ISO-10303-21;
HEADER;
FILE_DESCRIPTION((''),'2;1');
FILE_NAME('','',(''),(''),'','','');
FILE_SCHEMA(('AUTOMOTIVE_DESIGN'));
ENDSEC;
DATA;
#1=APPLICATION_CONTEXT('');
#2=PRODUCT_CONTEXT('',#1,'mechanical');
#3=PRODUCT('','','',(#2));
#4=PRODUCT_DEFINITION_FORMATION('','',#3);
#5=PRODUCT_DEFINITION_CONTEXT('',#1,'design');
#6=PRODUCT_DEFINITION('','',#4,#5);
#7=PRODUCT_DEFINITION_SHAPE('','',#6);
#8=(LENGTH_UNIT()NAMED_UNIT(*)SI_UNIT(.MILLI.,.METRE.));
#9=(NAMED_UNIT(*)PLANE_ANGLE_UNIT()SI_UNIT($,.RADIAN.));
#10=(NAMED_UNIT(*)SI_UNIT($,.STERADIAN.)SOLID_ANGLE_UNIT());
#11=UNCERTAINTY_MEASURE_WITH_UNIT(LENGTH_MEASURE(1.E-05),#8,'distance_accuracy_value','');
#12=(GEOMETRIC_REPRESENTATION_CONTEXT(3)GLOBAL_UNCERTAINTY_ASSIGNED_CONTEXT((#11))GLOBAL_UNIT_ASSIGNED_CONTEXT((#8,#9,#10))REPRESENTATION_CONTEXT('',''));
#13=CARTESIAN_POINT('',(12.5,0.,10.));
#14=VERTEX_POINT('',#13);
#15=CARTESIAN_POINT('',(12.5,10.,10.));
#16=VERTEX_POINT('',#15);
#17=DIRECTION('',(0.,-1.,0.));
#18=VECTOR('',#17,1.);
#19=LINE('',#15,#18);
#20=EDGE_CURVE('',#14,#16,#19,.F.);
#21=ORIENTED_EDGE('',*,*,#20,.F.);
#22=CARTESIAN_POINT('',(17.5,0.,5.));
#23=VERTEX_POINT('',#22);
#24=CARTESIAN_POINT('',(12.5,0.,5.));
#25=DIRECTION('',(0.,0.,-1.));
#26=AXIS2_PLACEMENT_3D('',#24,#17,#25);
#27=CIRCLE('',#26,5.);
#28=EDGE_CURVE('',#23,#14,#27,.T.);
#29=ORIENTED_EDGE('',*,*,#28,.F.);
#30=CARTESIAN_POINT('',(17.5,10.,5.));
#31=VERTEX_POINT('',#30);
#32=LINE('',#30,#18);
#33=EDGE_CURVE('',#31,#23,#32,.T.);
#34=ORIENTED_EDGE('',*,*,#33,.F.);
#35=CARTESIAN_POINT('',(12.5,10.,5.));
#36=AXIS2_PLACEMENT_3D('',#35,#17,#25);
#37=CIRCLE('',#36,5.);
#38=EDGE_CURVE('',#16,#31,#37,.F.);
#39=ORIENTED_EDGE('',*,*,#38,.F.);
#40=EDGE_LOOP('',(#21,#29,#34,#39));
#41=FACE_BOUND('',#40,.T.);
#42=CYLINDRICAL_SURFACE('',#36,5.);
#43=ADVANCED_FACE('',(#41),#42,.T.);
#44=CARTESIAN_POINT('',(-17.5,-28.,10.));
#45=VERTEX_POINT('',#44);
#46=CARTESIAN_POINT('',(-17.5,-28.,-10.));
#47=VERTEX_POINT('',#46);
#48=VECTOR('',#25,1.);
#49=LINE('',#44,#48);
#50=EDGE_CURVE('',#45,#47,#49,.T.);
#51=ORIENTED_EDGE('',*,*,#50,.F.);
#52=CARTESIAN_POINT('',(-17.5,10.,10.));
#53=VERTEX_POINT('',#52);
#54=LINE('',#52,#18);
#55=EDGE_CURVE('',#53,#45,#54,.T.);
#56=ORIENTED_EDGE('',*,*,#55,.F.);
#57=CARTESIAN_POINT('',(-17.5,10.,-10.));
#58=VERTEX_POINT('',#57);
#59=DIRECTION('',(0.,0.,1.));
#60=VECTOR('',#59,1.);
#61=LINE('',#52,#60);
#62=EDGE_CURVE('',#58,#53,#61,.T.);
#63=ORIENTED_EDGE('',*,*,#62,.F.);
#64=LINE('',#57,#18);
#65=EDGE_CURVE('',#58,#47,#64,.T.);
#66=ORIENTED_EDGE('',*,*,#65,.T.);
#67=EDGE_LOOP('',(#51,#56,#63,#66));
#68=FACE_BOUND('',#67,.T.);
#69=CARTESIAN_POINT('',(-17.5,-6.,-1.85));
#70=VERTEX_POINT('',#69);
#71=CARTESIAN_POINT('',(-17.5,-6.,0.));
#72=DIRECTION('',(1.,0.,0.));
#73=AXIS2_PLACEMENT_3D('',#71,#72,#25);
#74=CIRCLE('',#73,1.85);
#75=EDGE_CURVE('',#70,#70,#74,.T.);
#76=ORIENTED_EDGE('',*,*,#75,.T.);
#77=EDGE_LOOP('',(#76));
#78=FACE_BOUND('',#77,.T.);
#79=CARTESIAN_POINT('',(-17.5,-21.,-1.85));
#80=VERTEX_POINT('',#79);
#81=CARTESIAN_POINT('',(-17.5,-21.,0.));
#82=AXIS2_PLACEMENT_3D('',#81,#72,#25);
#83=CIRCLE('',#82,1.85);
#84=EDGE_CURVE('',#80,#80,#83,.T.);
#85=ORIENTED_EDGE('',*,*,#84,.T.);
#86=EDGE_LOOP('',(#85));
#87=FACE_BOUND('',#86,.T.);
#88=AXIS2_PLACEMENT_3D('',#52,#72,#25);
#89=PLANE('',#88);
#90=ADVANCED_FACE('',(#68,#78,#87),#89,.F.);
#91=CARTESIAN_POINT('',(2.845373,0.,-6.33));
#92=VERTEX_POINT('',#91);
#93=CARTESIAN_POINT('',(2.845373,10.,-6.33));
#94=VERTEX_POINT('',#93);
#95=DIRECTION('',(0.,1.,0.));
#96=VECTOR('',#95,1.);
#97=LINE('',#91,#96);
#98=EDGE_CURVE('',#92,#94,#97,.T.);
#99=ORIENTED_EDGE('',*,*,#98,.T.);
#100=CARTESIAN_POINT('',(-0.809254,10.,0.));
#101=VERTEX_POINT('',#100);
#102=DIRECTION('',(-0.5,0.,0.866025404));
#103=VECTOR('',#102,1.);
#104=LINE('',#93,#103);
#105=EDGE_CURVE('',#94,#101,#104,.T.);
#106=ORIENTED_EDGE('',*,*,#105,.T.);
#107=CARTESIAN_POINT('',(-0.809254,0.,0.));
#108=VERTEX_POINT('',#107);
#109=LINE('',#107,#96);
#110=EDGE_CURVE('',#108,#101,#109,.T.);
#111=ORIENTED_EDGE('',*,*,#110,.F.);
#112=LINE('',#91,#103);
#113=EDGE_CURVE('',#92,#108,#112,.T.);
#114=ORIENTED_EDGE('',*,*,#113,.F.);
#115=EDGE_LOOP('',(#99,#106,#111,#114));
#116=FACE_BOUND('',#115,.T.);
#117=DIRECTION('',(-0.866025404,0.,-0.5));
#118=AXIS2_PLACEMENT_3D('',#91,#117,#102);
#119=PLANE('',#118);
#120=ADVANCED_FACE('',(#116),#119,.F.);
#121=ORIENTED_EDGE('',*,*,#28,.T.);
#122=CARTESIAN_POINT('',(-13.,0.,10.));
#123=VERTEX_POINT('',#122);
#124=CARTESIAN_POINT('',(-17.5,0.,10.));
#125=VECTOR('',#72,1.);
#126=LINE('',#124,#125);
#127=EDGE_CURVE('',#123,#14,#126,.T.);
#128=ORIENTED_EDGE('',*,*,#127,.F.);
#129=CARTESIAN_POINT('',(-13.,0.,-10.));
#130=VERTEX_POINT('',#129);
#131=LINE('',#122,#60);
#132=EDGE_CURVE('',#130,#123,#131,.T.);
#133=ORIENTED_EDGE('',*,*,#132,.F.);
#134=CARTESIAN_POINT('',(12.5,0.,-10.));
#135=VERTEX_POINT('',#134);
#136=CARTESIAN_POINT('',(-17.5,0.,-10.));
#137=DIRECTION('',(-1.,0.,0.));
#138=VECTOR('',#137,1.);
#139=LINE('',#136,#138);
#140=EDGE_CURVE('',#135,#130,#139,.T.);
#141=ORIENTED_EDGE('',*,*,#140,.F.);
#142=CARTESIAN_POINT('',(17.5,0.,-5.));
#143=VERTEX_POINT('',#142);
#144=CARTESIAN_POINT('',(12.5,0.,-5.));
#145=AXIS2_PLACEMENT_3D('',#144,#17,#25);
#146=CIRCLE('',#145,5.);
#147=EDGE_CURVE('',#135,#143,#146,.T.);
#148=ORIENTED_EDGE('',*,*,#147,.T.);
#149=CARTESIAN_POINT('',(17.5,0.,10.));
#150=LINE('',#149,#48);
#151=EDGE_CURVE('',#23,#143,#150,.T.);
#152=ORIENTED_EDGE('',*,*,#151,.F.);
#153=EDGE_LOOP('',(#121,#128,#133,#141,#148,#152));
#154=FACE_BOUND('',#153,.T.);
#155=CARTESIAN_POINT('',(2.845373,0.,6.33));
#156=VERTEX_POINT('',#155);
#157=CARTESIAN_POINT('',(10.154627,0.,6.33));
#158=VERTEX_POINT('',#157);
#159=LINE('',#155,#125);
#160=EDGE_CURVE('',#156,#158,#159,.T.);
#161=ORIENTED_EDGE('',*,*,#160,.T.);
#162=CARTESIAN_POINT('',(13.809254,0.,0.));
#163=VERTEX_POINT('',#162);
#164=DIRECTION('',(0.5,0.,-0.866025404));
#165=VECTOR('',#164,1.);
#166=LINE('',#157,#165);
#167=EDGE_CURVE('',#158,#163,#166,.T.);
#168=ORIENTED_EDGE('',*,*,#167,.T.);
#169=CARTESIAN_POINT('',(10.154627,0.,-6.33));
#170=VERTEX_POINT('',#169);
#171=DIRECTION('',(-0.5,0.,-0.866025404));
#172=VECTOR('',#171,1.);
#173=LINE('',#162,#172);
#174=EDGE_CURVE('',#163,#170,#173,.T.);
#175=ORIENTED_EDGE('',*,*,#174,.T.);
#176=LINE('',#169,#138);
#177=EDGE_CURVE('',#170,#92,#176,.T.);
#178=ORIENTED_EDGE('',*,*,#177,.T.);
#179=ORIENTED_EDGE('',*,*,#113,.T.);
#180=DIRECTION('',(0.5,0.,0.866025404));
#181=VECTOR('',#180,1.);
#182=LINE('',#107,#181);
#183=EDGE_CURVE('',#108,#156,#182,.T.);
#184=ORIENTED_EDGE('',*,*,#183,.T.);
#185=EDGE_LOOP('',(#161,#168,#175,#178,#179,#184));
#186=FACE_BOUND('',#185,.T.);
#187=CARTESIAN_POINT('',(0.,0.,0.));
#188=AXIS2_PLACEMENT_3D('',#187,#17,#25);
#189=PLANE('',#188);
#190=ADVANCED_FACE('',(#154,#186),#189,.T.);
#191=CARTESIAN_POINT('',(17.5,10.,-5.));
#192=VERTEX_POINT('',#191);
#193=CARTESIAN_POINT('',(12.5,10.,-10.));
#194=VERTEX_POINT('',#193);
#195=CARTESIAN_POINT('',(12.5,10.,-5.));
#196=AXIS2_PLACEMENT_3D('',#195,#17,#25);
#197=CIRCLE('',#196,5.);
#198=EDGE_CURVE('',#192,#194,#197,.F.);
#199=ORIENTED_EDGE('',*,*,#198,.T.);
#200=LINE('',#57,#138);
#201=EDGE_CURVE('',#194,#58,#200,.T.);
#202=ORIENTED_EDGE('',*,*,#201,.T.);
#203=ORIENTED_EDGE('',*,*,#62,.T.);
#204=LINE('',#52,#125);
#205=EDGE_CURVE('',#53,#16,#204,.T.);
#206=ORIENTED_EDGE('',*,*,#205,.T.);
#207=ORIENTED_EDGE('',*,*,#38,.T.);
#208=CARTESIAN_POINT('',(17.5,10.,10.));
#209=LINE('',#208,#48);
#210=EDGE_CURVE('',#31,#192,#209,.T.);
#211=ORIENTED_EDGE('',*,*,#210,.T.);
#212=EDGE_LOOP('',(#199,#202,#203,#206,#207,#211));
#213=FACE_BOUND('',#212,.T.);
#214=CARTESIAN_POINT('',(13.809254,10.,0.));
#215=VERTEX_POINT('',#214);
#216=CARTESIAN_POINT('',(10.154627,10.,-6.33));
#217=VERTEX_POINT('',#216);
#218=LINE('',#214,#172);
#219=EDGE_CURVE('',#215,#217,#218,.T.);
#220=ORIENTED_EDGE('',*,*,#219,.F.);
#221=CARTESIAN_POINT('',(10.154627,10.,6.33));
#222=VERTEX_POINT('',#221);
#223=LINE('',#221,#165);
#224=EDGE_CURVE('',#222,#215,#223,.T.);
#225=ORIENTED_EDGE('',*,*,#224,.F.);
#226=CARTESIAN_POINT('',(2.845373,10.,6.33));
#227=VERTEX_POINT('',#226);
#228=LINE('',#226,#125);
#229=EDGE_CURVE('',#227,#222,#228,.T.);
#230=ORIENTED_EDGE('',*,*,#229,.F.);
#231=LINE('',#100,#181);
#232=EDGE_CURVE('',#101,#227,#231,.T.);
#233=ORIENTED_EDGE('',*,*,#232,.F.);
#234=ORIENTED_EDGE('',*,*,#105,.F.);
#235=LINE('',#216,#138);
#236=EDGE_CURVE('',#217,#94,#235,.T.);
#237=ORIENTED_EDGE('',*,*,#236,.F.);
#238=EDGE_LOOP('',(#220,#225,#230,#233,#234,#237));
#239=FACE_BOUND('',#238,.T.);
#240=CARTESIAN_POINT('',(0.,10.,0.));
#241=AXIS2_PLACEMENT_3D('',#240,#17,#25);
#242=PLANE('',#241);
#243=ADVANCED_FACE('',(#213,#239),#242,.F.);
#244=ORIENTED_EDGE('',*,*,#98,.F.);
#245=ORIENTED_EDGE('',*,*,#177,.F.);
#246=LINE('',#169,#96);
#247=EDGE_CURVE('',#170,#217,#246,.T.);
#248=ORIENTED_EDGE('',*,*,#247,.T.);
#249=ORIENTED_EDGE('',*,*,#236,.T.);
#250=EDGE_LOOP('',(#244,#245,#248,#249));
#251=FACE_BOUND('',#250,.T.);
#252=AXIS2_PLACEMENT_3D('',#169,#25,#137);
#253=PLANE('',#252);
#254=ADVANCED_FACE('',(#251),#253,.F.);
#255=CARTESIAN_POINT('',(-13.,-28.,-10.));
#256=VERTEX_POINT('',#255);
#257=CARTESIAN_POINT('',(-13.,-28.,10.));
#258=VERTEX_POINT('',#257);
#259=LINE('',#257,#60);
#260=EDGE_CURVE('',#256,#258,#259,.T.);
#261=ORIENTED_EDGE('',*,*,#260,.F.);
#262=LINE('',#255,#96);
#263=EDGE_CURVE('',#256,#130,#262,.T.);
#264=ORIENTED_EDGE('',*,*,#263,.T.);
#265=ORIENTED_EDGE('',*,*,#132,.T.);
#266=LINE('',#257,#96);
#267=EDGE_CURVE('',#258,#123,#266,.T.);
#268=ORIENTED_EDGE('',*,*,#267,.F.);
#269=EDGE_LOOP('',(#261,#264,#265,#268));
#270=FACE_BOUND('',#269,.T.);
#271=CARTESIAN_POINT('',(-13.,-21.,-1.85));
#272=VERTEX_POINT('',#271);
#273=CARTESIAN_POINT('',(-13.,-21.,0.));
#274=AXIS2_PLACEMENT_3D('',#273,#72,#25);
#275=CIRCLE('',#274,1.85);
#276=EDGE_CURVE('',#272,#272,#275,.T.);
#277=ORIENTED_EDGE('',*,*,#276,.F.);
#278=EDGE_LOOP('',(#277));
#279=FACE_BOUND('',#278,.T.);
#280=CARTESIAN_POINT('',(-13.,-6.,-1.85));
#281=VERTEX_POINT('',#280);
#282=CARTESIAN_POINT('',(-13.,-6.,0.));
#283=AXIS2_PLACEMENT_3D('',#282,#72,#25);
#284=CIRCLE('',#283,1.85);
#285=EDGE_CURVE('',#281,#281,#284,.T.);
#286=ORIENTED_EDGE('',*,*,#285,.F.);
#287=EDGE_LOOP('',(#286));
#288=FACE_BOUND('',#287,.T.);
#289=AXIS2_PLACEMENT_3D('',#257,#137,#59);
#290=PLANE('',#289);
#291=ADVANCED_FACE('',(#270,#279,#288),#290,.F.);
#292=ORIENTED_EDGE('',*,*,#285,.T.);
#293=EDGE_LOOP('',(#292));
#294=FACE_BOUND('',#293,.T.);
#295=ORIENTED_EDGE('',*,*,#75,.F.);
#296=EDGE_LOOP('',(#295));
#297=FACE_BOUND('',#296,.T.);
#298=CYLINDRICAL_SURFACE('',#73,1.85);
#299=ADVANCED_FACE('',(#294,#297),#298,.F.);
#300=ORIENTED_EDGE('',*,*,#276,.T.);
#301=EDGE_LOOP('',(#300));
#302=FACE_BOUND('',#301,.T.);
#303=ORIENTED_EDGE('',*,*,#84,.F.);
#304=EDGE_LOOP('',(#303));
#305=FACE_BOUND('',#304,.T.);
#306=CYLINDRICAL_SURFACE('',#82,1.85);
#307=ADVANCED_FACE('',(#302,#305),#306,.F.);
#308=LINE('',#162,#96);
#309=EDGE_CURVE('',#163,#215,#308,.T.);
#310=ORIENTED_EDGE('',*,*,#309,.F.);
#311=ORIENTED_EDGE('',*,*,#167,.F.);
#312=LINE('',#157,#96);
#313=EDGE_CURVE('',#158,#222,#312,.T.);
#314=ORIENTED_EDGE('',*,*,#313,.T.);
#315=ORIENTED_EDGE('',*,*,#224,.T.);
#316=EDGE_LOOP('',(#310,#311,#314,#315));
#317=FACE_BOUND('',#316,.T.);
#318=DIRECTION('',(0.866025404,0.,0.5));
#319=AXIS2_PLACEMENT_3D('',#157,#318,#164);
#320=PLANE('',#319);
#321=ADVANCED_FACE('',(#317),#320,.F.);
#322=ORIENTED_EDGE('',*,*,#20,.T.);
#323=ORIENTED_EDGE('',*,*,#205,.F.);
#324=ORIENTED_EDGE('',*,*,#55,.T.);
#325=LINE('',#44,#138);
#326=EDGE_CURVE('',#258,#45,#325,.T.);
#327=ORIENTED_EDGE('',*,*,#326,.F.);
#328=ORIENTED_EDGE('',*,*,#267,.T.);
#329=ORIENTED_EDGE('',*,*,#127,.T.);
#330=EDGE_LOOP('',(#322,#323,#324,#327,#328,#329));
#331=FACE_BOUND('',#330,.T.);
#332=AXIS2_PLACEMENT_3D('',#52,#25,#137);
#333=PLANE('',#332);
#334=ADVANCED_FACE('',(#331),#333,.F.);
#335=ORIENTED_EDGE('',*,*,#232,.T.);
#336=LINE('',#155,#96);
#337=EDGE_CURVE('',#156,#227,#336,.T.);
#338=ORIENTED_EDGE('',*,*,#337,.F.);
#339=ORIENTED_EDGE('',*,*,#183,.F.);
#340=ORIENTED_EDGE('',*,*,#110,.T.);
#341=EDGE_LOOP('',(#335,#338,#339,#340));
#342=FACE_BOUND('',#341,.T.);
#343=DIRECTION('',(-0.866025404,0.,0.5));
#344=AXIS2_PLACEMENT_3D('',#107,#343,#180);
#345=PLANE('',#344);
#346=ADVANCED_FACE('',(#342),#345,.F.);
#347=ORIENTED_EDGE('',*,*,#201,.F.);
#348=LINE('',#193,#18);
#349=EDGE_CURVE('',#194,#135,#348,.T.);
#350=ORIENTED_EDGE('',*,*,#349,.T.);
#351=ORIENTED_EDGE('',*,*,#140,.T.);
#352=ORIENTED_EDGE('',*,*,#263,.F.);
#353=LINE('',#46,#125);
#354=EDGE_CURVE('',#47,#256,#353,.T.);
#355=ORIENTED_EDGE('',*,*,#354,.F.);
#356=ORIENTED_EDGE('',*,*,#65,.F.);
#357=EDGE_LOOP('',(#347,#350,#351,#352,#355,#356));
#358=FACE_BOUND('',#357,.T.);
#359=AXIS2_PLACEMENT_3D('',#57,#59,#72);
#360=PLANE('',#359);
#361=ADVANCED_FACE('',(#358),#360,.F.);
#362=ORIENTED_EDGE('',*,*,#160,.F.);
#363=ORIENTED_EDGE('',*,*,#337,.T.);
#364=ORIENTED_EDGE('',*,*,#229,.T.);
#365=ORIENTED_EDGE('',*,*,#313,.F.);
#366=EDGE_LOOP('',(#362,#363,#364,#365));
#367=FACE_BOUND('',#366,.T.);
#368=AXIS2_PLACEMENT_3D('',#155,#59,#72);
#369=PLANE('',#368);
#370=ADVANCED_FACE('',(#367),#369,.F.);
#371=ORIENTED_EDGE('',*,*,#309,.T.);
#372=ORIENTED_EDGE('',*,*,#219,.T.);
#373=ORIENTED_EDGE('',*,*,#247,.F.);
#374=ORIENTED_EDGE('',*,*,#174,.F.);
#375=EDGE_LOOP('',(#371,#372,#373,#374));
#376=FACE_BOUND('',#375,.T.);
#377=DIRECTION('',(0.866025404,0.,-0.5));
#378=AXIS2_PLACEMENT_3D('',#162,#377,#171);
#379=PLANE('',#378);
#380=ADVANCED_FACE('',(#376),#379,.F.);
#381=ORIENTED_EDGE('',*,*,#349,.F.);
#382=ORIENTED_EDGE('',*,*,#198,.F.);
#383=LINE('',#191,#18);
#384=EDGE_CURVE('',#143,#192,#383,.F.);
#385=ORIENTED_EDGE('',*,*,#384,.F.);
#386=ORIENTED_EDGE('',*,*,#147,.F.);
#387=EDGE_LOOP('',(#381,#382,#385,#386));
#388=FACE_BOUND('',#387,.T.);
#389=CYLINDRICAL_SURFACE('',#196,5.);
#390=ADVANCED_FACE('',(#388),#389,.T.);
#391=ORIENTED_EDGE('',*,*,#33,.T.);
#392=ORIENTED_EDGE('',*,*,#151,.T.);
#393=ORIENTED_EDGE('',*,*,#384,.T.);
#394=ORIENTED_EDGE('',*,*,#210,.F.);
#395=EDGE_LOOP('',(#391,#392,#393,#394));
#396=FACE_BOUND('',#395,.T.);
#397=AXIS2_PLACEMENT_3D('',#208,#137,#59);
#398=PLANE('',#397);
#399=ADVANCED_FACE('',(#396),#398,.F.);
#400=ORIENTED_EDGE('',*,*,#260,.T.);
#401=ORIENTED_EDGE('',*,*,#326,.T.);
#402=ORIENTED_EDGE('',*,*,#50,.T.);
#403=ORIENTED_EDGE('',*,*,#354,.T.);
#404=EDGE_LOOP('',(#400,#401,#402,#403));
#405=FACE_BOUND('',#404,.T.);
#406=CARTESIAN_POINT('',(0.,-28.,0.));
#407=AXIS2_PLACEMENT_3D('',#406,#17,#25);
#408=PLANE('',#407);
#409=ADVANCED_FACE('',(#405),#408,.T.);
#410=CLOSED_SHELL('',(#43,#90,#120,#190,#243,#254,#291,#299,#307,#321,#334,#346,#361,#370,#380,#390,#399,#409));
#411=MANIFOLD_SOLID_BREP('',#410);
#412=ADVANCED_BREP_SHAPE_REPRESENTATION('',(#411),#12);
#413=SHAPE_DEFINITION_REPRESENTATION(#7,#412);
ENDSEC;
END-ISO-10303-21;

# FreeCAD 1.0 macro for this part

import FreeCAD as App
import Part
import Sketcher

V = App.Vector
Q = App.Units.Quantity


def edges_at(feature, points):
    """Names of the edges that pass closest to the given points."""
    edges = feature.Shape.Edges
    near = lambda p: min(range(len(edges)), key=lambda i: edges[i].distToShape(Part.Vertex(*p))[0])
    return sorted({f"Edge{near(p) + 1}" for p in points})

doc = App.newDocument("Part")
body = doc.addObject("PartDesign::Body", "Body")

sketch1 = body.newObject("Sketcher::SketchObject", "Sketch")
sketch1.AttachmentSupport = (doc.getObject("XZ_Plane"), [""])
sketch1.MapMode = "FlatFace"
sketch1.addGeometry([
    Part.LineSegment(V(-18, -10, 0), V(-18, 10, 0)),
    Part.LineSegment(V(-18, 10, 0), V(18, 10, 0)),
    Part.LineSegment(V(18, 10, 0), V(18, -10, 0)),
    Part.LineSegment(V(18, -10, 0), V(-18, -10, 0)),
], False)
sketch1.addConstraint([
    Sketcher.Constraint("Coincident", 0, 2, 1, 1),
    Sketcher.Constraint("Coincident", 1, 2, 2, 1),
    Sketcher.Constraint("Coincident", 2, 2, 3, 1),
    Sketcher.Constraint("Coincident", 3, 2, 0, 1),
    Sketcher.Constraint("Vertical", 0),
    Sketcher.Constraint("Horizontal", 1),
    Sketcher.Constraint("Vertical", 2),
    Sketcher.Constraint("Horizontal", 3),
    Sketcher.Constraint("Symmetric", 0, 2, 2, 2, -1, 1),
    Sketcher.Constraint("DistanceX", 1, 1, 1, 2, Q("35 mm")),
    Sketcher.Constraint("DistanceY", 0, 1, 0, 2, Q("20 mm")),
])
pad1 = body.newObject("PartDesign::Pad", "Pad")
pad1.Profile = sketch1
pad1.Length = 10
pad1.Reversed = True
doc.recompute()

fillet = body.newObject("PartDesign::Fillet", "Fillet")
fillet.Base = (pad1, edges_at(pad1, [(17.5, 5, 10), (17.5, 5, -10)]))
fillet.Radius = 5

sketch2 = body.newObject("Sketcher::SketchObject", "Sketch001")
sketch2.AttachmentSupport = (doc.getObject("XZ_Plane"), [""])
sketch2.MapMode = "FlatFace"
sketch2.AttachmentOffset = App.Placement(V(0, 0, -10), App.Rotation())
sketch2.addGeometry([
    Part.LineSegment(V(10, 6, 0), V(14, 0, 0)),
    Part.LineSegment(V(14, 0, 0), V(10, -6, 0)),
    Part.LineSegment(V(10, -6, 0), V(3, -6, 0)),
    Part.LineSegment(V(3, -6, 0), V(-1, 0, 0)),
    Part.LineSegment(V(-1, 0, 0), V(3, 6, 0)),
    Part.LineSegment(V(3, 6, 0), V(10, 6, 0)),
], False)
sketch2.addConstraint([
    Sketcher.Constraint("Coincident", 0, 2, 1, 1),
    Sketcher.Constraint("Coincident", 1, 2, 2, 1),
    Sketcher.Constraint("Coincident", 2, 2, 3, 1),
    Sketcher.Constraint("Coincident", 3, 2, 4, 1),
    Sketcher.Constraint("Coincident", 4, 2, 5, 1),
    Sketcher.Constraint("Coincident", 5, 2, 0, 1),
    Sketcher.Constraint("Horizontal", 2),
    Sketcher.Constraint("Horizontal", 5),
    Sketcher.Constraint("Symmetric", 2, 2, 4, 2, -1),
    Sketcher.Constraint("PointOnObject", 0, 2, -1),
    Sketcher.Constraint("PointOnObject", 3, 2, -1),
    Sketcher.Constraint("Parallel", 0, 3),
    Sketcher.Constraint("Parallel", 1, 4),
    Sketcher.Constraint("Angle", 0, Q("-60 deg")),
    Sketcher.Constraint("DistanceY", 1, 2, -1, 1, Q("6.33 mm")),
    Sketcher.Constraint("DistanceX", 2, 2, 2, 1, Q("7.309254 mm")),
    Sketcher.Constraint("DistanceX", -1, 1, 0, 2, Q("13.809254 mm")),
])
pocket1 = body.newObject("PartDesign::Pocket", "Pocket")
pocket1.Profile = sketch2
pocket1.Type = "ThroughAll"
pocket1.Reversed = True

sketch3 = body.newObject("Sketcher::SketchObject", "Sketch002")
sketch3.AttachmentSupport = (doc.getObject("XZ_Plane"), [""])
sketch3.MapMode = "FlatFace"
sketch3.addGeometry([
    Part.LineSegment(V(-17.5, 10, 0), V(-17.5, -10, 0)),
    Part.LineSegment(V(-17.5, -10, 0), V(-13, -10, 0)),
    Part.LineSegment(V(-13, -10, 0), V(-13, 10, 0)),
    Part.LineSegment(V(-13, 10, 0), V(-17.5, 10, 0)),
], False)
sketch3.addConstraint([
    Sketcher.Constraint("Coincident", 0, 2, 1, 1),
    Sketcher.Constraint("Coincident", 1, 2, 2, 1),
    Sketcher.Constraint("Coincident", 2, 2, 3, 1),
    Sketcher.Constraint("Coincident", 3, 2, 0, 1),
    Sketcher.Constraint("Vertical", 0),
    Sketcher.Constraint("Horizontal", 1),
    Sketcher.Constraint("Vertical", 2),
    Sketcher.Constraint("Horizontal", 3),
    Sketcher.Constraint("DistanceY", 0, 2, 0, 1, Q("20 mm")),
    Sketcher.Constraint("DistanceX", 1, 1, 1, 2, Q("4.5 mm")),
    Sketcher.Constraint("DistanceY", 0, 2, -1, 1, Q("10 mm")),
    Sketcher.Constraint("DistanceX", 1, 2, -1, 1, Q("13 mm")),
])
pad2 = body.newObject("PartDesign::Pad", "Pad001")
pad2.Profile = sketch3
pad2.Length = 28

sketch4 = body.newObject("Sketcher::SketchObject", "Sketch003")
sketch4.AttachmentSupport = (doc.getObject("YZ_Plane"), [""])
sketch4.MapMode = "FlatFace"
sketch4.AttachmentOffset = App.Placement(V(0, 0, -13), App.Rotation())
sketch4.addGeometry([
    Part.Circle(V(-6, 0, 0), V(0, 0, 1), 1.9),
    Part.Circle(V(-21, 0, 0), V(0, 0, 1), 1.9),
], False)
sketch4.addConstraint([
    Sketcher.Constraint("Equal", 0, 1),
    Sketcher.Constraint("PointOnObject", 0, 3, -1),
    Sketcher.Constraint("PointOnObject", 1, 3, -1),
    Sketcher.Constraint("Diameter", 0, Q("3.7 mm")),
    Sketcher.Constraint("DistanceX", 0, 3, -1, 1, Q("6 mm")),
    Sketcher.Constraint("DistanceX", 1, 3, -1, 1, Q("21 mm")),
])
pocket2 = body.newObject("PartDesign::Pocket", "Pocket001")
pocket2.Profile = sketch4
pocket2.Type = "ThroughAll"

doc.recompute()
